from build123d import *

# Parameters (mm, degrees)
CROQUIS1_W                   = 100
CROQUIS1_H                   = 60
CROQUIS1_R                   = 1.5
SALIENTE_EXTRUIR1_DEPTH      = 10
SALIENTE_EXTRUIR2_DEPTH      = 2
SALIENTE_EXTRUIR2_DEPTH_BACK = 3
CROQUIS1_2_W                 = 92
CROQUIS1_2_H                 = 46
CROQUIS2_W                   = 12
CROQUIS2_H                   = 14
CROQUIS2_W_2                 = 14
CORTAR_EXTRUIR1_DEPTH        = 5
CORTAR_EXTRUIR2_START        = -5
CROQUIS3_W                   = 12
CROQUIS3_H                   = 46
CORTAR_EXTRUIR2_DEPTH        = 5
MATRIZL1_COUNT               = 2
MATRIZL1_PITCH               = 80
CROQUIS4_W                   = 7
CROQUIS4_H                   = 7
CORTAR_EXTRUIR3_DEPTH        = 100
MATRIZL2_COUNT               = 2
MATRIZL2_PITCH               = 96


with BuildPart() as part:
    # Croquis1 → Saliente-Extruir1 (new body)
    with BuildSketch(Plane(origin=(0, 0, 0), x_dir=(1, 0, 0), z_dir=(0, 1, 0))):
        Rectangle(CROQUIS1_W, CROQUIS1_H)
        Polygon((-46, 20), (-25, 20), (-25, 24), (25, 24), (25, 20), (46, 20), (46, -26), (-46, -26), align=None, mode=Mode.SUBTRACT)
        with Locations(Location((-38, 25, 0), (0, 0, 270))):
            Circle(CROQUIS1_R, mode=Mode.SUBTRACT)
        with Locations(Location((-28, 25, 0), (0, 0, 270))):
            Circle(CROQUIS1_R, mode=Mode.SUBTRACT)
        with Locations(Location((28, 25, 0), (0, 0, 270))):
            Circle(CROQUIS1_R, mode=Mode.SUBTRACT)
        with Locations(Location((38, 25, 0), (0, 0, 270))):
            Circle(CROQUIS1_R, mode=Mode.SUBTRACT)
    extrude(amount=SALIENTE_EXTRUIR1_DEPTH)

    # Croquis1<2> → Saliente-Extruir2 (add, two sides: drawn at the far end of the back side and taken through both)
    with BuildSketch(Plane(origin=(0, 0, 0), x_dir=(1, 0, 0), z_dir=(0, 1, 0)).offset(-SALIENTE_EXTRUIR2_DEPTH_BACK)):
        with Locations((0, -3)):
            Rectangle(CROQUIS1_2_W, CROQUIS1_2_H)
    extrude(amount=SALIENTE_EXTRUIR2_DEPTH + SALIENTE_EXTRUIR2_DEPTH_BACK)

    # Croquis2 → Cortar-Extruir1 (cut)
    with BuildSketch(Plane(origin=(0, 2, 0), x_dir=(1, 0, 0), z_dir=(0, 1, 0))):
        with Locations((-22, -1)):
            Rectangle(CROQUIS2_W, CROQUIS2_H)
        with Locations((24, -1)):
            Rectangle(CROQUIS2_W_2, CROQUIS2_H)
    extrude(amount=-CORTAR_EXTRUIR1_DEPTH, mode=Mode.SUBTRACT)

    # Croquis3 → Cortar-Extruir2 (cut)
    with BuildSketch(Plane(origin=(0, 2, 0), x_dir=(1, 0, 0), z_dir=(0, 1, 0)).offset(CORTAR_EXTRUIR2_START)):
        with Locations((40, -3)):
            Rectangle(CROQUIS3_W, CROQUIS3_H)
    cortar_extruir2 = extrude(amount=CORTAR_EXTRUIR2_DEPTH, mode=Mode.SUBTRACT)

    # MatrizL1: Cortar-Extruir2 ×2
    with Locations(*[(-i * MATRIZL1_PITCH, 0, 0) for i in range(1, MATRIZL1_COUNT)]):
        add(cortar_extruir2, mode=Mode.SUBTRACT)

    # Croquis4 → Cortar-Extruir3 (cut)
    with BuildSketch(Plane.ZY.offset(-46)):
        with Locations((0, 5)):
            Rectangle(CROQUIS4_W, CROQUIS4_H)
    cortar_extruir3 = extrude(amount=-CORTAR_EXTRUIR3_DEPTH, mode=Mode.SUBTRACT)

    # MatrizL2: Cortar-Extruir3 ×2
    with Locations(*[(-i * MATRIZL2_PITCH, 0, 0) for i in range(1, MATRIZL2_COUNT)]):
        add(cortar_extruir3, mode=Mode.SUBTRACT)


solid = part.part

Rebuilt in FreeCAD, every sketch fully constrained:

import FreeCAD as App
import Part
import Sketcher

V = App.Vector


def add_polygon(sketch, points):
    """Adds a closed chain of lines whose ends are joined by coincident constraints."""
    first, n = sketch.GeometryCount, len(points)
    for a, b in zip(points, points[1:] + points[:1]):
        sketch.addGeometry(Part.LineSegment(App.Vector(*a, 0), App.Vector(*b, 0)), False)
    for i in range(n):
        sketch.addConstraint(Sketcher.Constraint("Coincident", first + i, 2, first + (i + 1) % n, 1))

doc = App.newDocument("Part")
body = doc.addObject("PartDesign::Body", "Body")

# Sketch on XZ plane
sketch1 = body.newObject("Sketcher::SketchObject", "Sketch")
sketch1.AttachmentSupport = (doc.getObject("XZ_Plane"), [""])
sketch1.MapMode = "FlatFace"
add_polygon(sketch1, [(-50, -30), (-50, 30), (50, 30), (50, -30)])  # lines 0-3
add_polygon(sketch1, [(-46, 26), (-46, -20), (-25, -20), (-25, -24), (25, -24), (25, -20), (46, -20), (46, 26)])  # lines 4-11
sketch1.addGeometry(Part.Circle(V(-38, -25, 0), V(0, 0, 1), 1.5), False)  # 12
sketch1.addGeometry(Part.Circle(V(-28, -25, 0), V(0, 0, 1), 1.5), False)  # 13
sketch1.addGeometry(Part.Circle(V(28, -25, 0), V(0, 0, 1), 1.5), False)  # 14
sketch1.addGeometry(Part.Circle(V(38, -25, 0), V(0, 0, 1), 1.5), False)  # 15
sketch1.addConstraint([
    Sketcher.Constraint("Vertical", 0),
    Sketcher.Constraint("Horizontal", 1),
    Sketcher.Constraint("Vertical", 2),
    Sketcher.Constraint("Horizontal", 3),
    Sketcher.Constraint("Vertical", 4),
    Sketcher.Constraint("Horizontal", 5),
    Sketcher.Constraint("Vertical", 6),
    Sketcher.Constraint("Horizontal", 7),
    Sketcher.Constraint("Vertical", 8),
    Sketcher.Constraint("Horizontal", 9),
    Sketcher.Constraint("Vertical", 10),
    Sketcher.Constraint("Horizontal", 11),
    Sketcher.Constraint("Equal", 12, 13),
    Sketcher.Constraint("Equal", 13, 14),
    Sketcher.Constraint("Equal", 14, 15),
    Sketcher.Constraint("Symmetric", 0, 2, 2, 2, -1, 1),
    Sketcher.Constraint("Symmetric", 13, 3, 14, 3, -2),
    Sketcher.Constraint("Symmetric", 12, 3, 15, 3, -2),
    Sketcher.Constraint("Symmetric", 5, 2, 8, 2, -2),
    Sketcher.Constraint("Horizontal", 12, 3, 13, 3),
    Sketcher.Constraint("Equal", 5, 9),
    Sketcher.Constraint("Diameter", 12, 3.0),
    Sketcher.Constraint("DistanceX", 1, 1, 1, 2, 100.0),
    Sketcher.Constraint("DistanceX", 5, 1, 5, 2, 21.0),
    Sketcher.Constraint("DistanceX", 7, 1, 7, 2, 50.0),
    Sketcher.Constraint("DistanceY", 0, 1, 0, 2, 60.0),
    Sketcher.Constraint("DistanceY", 4, 2, 4, 1, 46.0),
    Sketcher.Constraint("DistanceY", 6, 2, 6, 1, 4.0),
    Sketcher.Constraint("DistanceX", 12, 3, -1, 1, 38.0),
    Sketcher.Constraint("DistanceY", 12, 3, -1, 1, 25.0),
    Sketcher.Constraint("DistanceX", 13, 3, -1, 1, 28.0),
    Sketcher.Constraint("DistanceY", 4, 2, -1, 1, 20.0),
])
pad1 = body.newObject("PartDesign::Pad", "Pad")
pad1.Profile = sketch1
pad1.Length = 10
pad1.Reversed = True

# Sketch on XZ plane
sketch2 = body.newObject("Sketcher::SketchObject", "Sketch001")
sketch2.AttachmentSupport = (doc.getObject("XZ_Plane"), [""])
sketch2.MapMode = "FlatFace"
add_polygon(sketch2, [(-46, -20), (-46, 26), (46, 26), (46, -20)])  # lines 0-3
sketch2.addConstraint([
    Sketcher.Constraint("Vertical", 0),
    Sketcher.Constraint("Horizontal", 1),
    Sketcher.Constraint("Vertical", 2),
    Sketcher.Constraint("Horizontal", 3),
    Sketcher.Constraint("DistanceX", 1, 1, 1, 2, 92.0),
    Sketcher.Constraint("DistanceY", 0, 1, 0, 2, 46.0),
    Sketcher.Constraint("DistanceX", 0, 2, -1, 1, 46.0),
    Sketcher.Constraint("DistanceY", -1, 1, 0, 2, 26.0),
])
pad2 = body.newObject("PartDesign::Pad", "Pad001")
pad2.Profile = sketch2
pad2.Type = "TwoLengths"
pad2.Length = 2
pad2.Length2 = 3
pad2.Reversed = True

# Sketch on XZ plane
sketch3 = body.newObject("Sketcher::SketchObject", "Sketch002")
sketch3.AttachmentSupport = (doc.getObject("XZ_Plane"), [""])
sketch3.MapMode = "FlatFace"
sketch3.AttachmentOffset = App.Placement(V(0, 0, -2), App.Rotation())
add_polygon(sketch3, [(-28, -6), (-28, 8), (-16, 8), (-16, -6)])  # lines 0-3
add_polygon(sketch3, [(17, -6), (17, 8), (31, 8), (31, -6)])  # lines 4-7
sketch3.addConstraint([
    Sketcher.Constraint("Vertical", 0),
    Sketcher.Constraint("Horizontal", 1),
    Sketcher.Constraint("Vertical", 2),
    Sketcher.Constraint("Horizontal", 3),
    Sketcher.Constraint("Vertical", 4),
    Sketcher.Constraint("Horizontal", 5),
    Sketcher.Constraint("Vertical", 6),
    Sketcher.Constraint("Horizontal", 7),
    Sketcher.Constraint("Horizontal", 1, 2, 4, 2),
    Sketcher.Constraint("Horizontal", 3, 2, 6, 2),
    Sketcher.Constraint("Equal", 7, 0),
    Sketcher.Constraint("DistanceX", 1, 1, 1, 2, 12.0),
    Sketcher.Constraint("DistanceX", 5, 1, 5, 2, 14.0),
    Sketcher.Constraint("DistanceX", 0, 2, -1, 1, 28.0),
    Sketcher.Constraint("DistanceY", -1, 1, 0, 2, 8.0),
    Sketcher.Constraint("DistanceX", -1, 1, 4, 2, 17.0),
])
pocket1 = body.newObject("PartDesign::Pocket", "Pocket")
pocket1.Profile = sketch3
pocket1.Length = 5
pocket1.Reversed = True

# Sketch on XZ plane
sketch4 = body.newObject("Sketcher::SketchObject", "Sketch003")
sketch4.AttachmentSupport = (doc.getObject("XZ_Plane"), [""])
sketch4.MapMode = "FlatFace"
sketch4.AttachmentOffset = App.Placement(V(0, 0, 3), App.Rotation())
add_polygon(sketch4, [(34, -20), (34, 26), (46, 26), (46, -20)])  # lines 0-3
sketch4.addConstraint([
    Sketcher.Constraint("Vertical", 0),
    Sketcher.Constraint("Horizontal", 1),
    Sketcher.Constraint("Vertical", 2),
    Sketcher.Constraint("Horizontal", 3),
    Sketcher.Constraint("DistanceX", 1, 1, 1, 2, 12.0),
    Sketcher.Constraint("DistanceY", 0, 1, 0, 2, 46.0),
    Sketcher.Constraint("DistanceX", -1, 1, 0, 2, 34.0),
    Sketcher.Constraint("DistanceY", -1, 1, 0, 2, 26.0),
])
pocket2 = body.newObject("PartDesign::Pocket", "Pocket001")
pocket2.Profile = sketch4
pocket2.Length = 5
doc.recompute()

linearpattern = body.newObject("PartDesign::LinearPattern", "LinearPattern")
linearpattern.Originals = [pocket2]
linearpattern.Direction = (doc.getObject("X_Axis"), [""])
linearpattern.Mode = "offset"
linearpattern.Offset = 80
linearpattern.Occurrences = 2
linearpattern.Reversed = True
body.Tip = linearpattern

# Sketch on YZ plane
sketch5 = body.newObject("Sketcher::SketchObject", "Sketch004")
sketch5.AttachmentSupport = (doc.getObject("YZ_Plane"), [""])
sketch5.MapMode = "FlatFace"
sketch5.AttachmentOffset = App.Placement(V(0, 0, 46), App.Rotation())
add_polygon(sketch5, [(8.5, -3.5), (1.5, -3.5), (1.5, 3.5), (8.5, 3.5)])  # lines 0-3
sketch5.addConstraint([
    Sketcher.Constraint("Horizontal", 0),
    Sketcher.Constraint("Vertical", 1),
    Sketcher.Constraint("Horizontal", 2),
    Sketcher.Constraint("Vertical", 3),
    Sketcher.Constraint("Equal", 2, 1),
    Sketcher.Constraint("DistanceX", 0, 2, 0, 1, 7.0),
    Sketcher.Constraint("DistanceX", -1, 1, 0, 2, 1.5),
    Sketcher.Constraint("DistanceY", 0, 2, -1, 1, 3.5),
])
pocket3 = body.newObject("PartDesign::Pocket", "Pocket002")
pocket3.Profile = sketch5
pocket3.Length = 100
pocket3.Reversed = True
doc.recompute()

linearpattern2 = body.newObject("PartDesign::LinearPattern", "LinearPattern001")
linearpattern2.Originals = [pocket3]
linearpattern2.Direction = (doc.getObject("X_Axis"), [""])
linearpattern2.Mode = "offset"
linearpattern2.Offset = 96
linearpattern2.Occurrences = 2
linearpattern2.Reversed = True
body.Tip = linearpattern2

doc.recompute()
